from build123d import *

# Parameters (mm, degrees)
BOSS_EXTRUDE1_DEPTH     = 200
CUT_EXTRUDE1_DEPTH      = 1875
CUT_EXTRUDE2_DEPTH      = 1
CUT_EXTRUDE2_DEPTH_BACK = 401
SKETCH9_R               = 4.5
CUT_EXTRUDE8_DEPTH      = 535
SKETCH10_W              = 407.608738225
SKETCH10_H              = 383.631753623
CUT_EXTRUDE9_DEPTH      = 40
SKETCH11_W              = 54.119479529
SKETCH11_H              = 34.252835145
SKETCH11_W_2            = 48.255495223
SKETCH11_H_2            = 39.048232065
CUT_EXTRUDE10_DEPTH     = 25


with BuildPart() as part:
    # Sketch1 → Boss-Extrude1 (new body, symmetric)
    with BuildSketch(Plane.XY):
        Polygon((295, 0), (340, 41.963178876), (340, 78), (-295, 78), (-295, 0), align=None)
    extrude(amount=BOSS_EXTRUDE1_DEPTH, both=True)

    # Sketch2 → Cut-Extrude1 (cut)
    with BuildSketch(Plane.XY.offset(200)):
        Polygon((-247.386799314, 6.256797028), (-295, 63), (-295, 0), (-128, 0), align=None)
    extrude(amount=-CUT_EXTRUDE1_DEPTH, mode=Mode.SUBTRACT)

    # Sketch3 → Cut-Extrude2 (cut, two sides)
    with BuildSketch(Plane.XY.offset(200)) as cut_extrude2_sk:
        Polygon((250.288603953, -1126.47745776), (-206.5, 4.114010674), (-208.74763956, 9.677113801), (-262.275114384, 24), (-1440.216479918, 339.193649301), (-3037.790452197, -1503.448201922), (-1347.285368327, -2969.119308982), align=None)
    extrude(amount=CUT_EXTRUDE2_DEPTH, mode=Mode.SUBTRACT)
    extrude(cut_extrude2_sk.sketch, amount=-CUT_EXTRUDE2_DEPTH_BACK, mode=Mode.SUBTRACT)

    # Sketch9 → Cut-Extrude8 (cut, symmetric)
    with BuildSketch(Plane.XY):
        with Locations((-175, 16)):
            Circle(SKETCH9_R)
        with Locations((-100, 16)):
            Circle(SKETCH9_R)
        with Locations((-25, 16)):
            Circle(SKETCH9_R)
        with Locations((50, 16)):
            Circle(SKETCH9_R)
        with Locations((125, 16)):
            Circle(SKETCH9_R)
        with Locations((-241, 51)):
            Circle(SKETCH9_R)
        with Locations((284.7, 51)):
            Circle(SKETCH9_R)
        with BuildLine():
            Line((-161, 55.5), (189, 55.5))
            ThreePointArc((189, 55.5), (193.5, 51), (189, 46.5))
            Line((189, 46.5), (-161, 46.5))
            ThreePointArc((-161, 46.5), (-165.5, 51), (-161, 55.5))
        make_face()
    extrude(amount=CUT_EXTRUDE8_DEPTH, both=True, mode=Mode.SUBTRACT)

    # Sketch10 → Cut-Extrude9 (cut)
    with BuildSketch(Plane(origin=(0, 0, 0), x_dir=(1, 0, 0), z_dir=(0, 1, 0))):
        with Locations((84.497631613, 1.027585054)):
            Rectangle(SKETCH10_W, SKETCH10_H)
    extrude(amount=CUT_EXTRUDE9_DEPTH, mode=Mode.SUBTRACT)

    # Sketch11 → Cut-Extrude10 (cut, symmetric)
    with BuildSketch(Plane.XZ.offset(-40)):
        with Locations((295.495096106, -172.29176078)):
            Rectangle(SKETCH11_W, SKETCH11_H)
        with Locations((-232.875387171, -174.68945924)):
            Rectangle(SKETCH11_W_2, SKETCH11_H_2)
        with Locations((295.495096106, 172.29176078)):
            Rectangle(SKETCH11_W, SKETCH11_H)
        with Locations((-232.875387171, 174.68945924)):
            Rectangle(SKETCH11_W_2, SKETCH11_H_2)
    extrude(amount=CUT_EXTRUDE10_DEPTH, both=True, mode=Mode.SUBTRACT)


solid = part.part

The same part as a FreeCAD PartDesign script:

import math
import FreeCAD as App
import Part
import Sketcher

V = App.Vector
Q = App.Units.Quantity


def add_polygon(sketch, points):
    """Adds a closed chain of lines whose ends are joined by coincident constraints."""
    first, n = sketch.GeometryCount, len(points)
    for a, b in zip(points, points[1:] + points[:1]):
        sketch.addGeometry(Part.LineSegment(App.Vector(*a, 0), App.Vector(*b, 0)), False)
    for i in range(n):
        sketch.addConstraint(Sketcher.Constraint("Coincident", first + i, 2, first + (i + 1) % n, 1))

doc = App.newDocument("Part")
params = doc.addObject("Spreadsheet::Sheet", "Params")
for row, (alias, value) in enumerate([
    ("sketch1_width", "635 mm"),
    ("sketch1_width2", "590 mm"),
    ("sketch1_height", "78 mm"),
    ("pad1_length", "400 mm"),
    ("sketch2_width", "167 mm"),
    ("sketch2_height", "63 mm"),
    ("pocket1_length", "1875 mm"),
    ("sketch3_length", "6 mm"),
    ("sketch4_diameter", "9 mm"),
    ("sketch4_width", "350 mm"),
    ("pocket3_length", "1070 mm"),
    ("pocket4_length", "40 mm"),
    ("pocket5_length", "50 mm"),
], start=1):
    params.set(f"A{row}", alias)
    params.set(f"B{row}", "=" + value)
    params.setAlias(f"B{row}", alias)

body = doc.addObject("PartDesign::Body", "Body")

# Sketch on XY plane
sketch1 = doc.addObject("Sketcher::SketchObject", "Sketch")
body.addObject(sketch1)
sketch1.AttachmentSupport = (doc.XY_Plane, [""])
sketch1.MapMode = "FlatFace"
add_polygon(sketch1, [(295, 0), (340, 42), (340, 78), (-295, 78), (-295, 0)])  # lines 0-4
sketch1.addConstraint(Sketcher.Constraint("Vertical", 1))
sketch1.addConstraint(Sketcher.Constraint("Horizontal", 2))
sketch1.addConstraint(Sketcher.Constraint("Vertical", 3))
sketch1.addConstraint(Sketcher.Constraint("Horizontal", 4))
sketch1.addConstraint(Sketcher.Constraint("Symmetric", 3, 2, 4, 2, -1, 1))
sketch1.addConstraint(Sketcher.Constraint("DistanceX", 2, 2, 2, 1, Q("635 mm")))
sketch1.addConstraint(Sketcher.Constraint("DistanceX", 4, 1, 4, 2, Q("590 mm")))
sketch1.addConstraint(Sketcher.Constraint("DistanceY", 3, 2, 3, 1, Q("78 mm")))
sketch1.addConstraint(Sketcher.Constraint("Angle", 0, Q("43 deg")))
sketch1.setExpression("Constraints[10]", "Params.sketch1_width")
sketch1.setExpression("Constraints[11]", "Params.sketch1_width2")
sketch1.setExpression("Constraints[12]", "Params.sketch1_height")
pad1 = doc.addObject("PartDesign::Pad", "Pad")
body.addObject(pad1)
pad1.Profile = sketch1
pad1.setExpression("Length", "Params.pad1_length")
pad1.Midplane = True

# Sketch on XY plane
sketch2 = doc.addObject("Sketcher::SketchObject", "Sketch001")
body.addObject(sketch2)
sketch2.AttachmentSupport = (doc.XY_Plane, [""])
sketch2.MapMode = "FlatFace"
sketch2.AttachmentOffset = App.Placement(V(0, 0, 200), App.Rotation())
add_polygon(sketch2, [(-247, 6), (-295, 63), (-295, 0), (-128, 0)])  # lines 0-3
sketch2.addConstraint(Sketcher.Constraint("Vertical", 1))
sketch2.addConstraint(Sketcher.Constraint("Horizontal", 2))
sketch2.addConstraint(Sketcher.Constraint("PointOnObject", 1, 2, -1))
sketch2.addConstraint(Sketcher.Constraint("DistanceX", 2, 1, 2, 2, Q("167 mm")))
sketch2.addConstraint(Sketcher.Constraint("DistanceY", 1, 2, 1, 1, Q("63 mm")))
sketch2.addConstraint(Sketcher.Constraint("Angle", 0, Q("130 deg")))
sketch2.addConstraint(Sketcher.Constraint("Angle", 3, Q("177 deg")))
sketch2.addConstraint(Sketcher.Constraint("DistanceX", 0, 2, -1, 1, Q("295 mm")))
sketch2.setExpression("Constraints[7]", "Params.sketch2_width")
sketch2.setExpression("Constraints[8]", "Params.sketch2_height")
pocket1 = doc.addObject("PartDesign::Pocket", "Pocket")
body.addObject(pocket1)
pocket1.Profile = sketch2
pocket1.setExpression("Length", "Params.pocket1_length")

# Sketch on XY plane
sketch3 = doc.addObject("Sketcher::SketchObject", "Sketch002")
body.addObject(sketch3)
sketch3.AttachmentSupport = (doc.XY_Plane, [""])
sketch3.MapMode = "FlatFace"
sketch3.AttachmentOffset = App.Placement(V(0, 0, 200), App.Rotation())
add_polygon(sketch3, [(250, -1126), (-206, 4), (-209, 10), (-1440, 339), (-3038, -1503), (-1347, -2969)])  # lines 0-5
sketch3.addConstraint(Sketcher.Constraint("Parallel", 0, 1))
sketch3.addConstraint(Sketcher.Constraint("Perpendicular", 3, 4))
sketch3.addConstraint(Sketcher.Constraint("Perpendicular", 4, 5))
sketch3.addConstraint(Sketcher.Constraint("Equal", 3, 5))
sketch3.addConstraint(Sketcher.Constraint("Angle", 0, Q("112 deg")))
sketch3.addConstraint(Sketcher.Constraint("Distance", 1, Q("6 mm")))
sketch3.addConstraint(Sketcher.Constraint("DistanceX", 0, 2, -1, 1, Q("206.5 mm")))
sketch3.addConstraint(Sketcher.Constraint("DistanceY", 3, 2, -1, 1, Q("1503.448202 mm")))
sketch3.addConstraint(Sketcher.Constraint("Distance", 0, Q("1219.382178 mm")))
sketch3.addConstraint(Sketcher.Constraint("DistanceY", -1, 1, 0, 2, Q("4.114011 mm")))
sketch3.addConstraint(Sketcher.Constraint("DistanceX", 2, 2, -1, 1, Q("1440.21648 mm")))
sketch3.addConstraint(Sketcher.Constraint("DistanceY", -1, 1, 2, 2, Q("339.193649 mm")))
sketch3.setExpression("Constraints[11]", "Params.sketch3_length")
pocket2 = doc.addObject("PartDesign::Pocket", "Pocket001")
body.addObject(pocket2)
pocket2.Profile = sketch3
pocket2.Type = "ThroughAll"
pocket2.Midplane = True

# Sketch on XY plane
sketch4 = doc.addObject("Sketcher::SketchObject", "Sketch003")
body.addObject(sketch4)
sketch4.AttachmentSupport = (doc.XY_Plane, [""])
sketch4.MapMode = "FlatFace"
sketch4.addGeometry(Part.Circle(V(-175, 16, 0), V(0, 0, 1), 4.5), False)
sketch4.addGeometry(Part.Circle(V(-100, 16, 0), V(0, 0, 1), 4.5), False)
sketch4.addGeometry(Part.Circle(V(-25, 16, 0), V(0, 0, 1), 4.5), False)
sketch4.addGeometry(Part.Circle(V(50, 16, 0), V(0, 0, 1), 4.5), False)
sketch4.addGeometry(Part.Circle(V(125, 16, 0), V(0, 0, 1), 4.5), False)
sketch4.addGeometry(Part.Circle(V(-241, 51, 0), V(0, 0, 1), 4.5), False)
sketch4.addGeometry(Part.Circle(V(284.7, 51, 0), V(0, 0, 1), 4.5), False)
sketch4.addGeometry(Part.LineSegment(V(189, 55.5, 0), V(-161, 55.5, 0)), False)
sketch4.addGeometry(Part.ArcOfCircle(Part.Circle(V(-161, 51, 0), V(0, 0, 1), 4.5), math.radians(90), math.radians(270)), False)
sketch4.addGeometry(Part.LineSegment(V(-161, 46.5, 0), V(189, 46.5, 0)), False)
sketch4.addGeometry(Part.ArcOfCircle(Part.Circle(V(189, 51, 0), V(0, 0, 1), 4.5), math.radians(-90), math.radians(90)), False)
sketch4.addConstraint(Sketcher.Constraint("Tangent", 7, 2, 8, 1))
sketch4.addConstraint(Sketcher.Constraint("Tangent", 8, 2, 9, 1))
sketch4.addConstraint(Sketcher.Constraint("Tangent", 9, 2, 10, 1))
sketch4.addConstraint(Sketcher.Constraint("Tangent", 10, 2, 7, 1))
sketch4.addConstraint(Sketcher.Constraint("Horizontal", 7))
sketch4.addConstraint(Sketcher.Constraint("Horizontal", 9))
sketch4.addConstraint(Sketcher.Constraint("Equal", 0, 1))
sketch4.addConstraint(Sketcher.Constraint("Equal", 1, 2))
sketch4.addConstraint(Sketcher.Constraint("Equal", 2, 3))
sketch4.addConstraint(Sketcher.Constraint("Equal", 3, 4))
sketch4.addConstraint(Sketcher.Constraint("Equal", 4, 5))
sketch4.addConstraint(Sketcher.Constraint("Equal", 5, 6))
sketch4.addConstraint(Sketcher.Constraint("Equal", 6, 8))
sketch4.addConstraint(Sketcher.Constraint("Horizontal", 0, 3, 1, 3))
sketch4.addConstraint(Sketcher.Constraint("Horizontal", 1, 3, 2, 3))
sketch4.addConstraint(Sketcher.Constraint("Horizontal", 2, 3, 3, 3))
sketch4.addConstraint(Sketcher.Constraint("Horizontal", 3, 3, 4, 3))
sketch4.addConstraint(Sketcher.Constraint("Horizontal", 5, 3, 6, 3))
sketch4.addConstraint(Sketcher.Constraint("Horizontal", 6, 3, 8, 3))
sketch4.addConstraint(Sketcher.Constraint("Diameter", 0, Q("9 mm")))
sketch4.addConstraint(Sketcher.Constraint("DistanceX", 7, 2, 7, 1, Q("350 mm")))
sketch4.addConstraint(Sketcher.Constraint("DistanceX", 0, 3, -1, 1, Q("175 mm")))
sketch4.addConstraint(Sketcher.Constraint("DistanceY", -1, 1, 0, 3, Q("16 mm")))
sketch4.addConstraint(Sketcher.Constraint("DistanceX", 1, 3, -1, 1, Q("100 mm")))
sketch4.addConstraint(Sketcher.Constraint("DistanceX", 2, 3, -1, 1, Q("25 mm")))
sketch4.addConstraint(Sketcher.Constraint("DistanceX", -1, 1, 3, 3, Q("50 mm")))
sketch4.addConstraint(Sketcher.Constraint("DistanceX", -1, 1, 4, 3, Q("125 mm")))
sketch4.addConstraint(Sketcher.Constraint("DistanceX", 5, 3, -1, 1, Q("241 mm")))
sketch4.addConstraint(Sketcher.Constraint("DistanceY", -1, 1, 5, 3, Q("51 mm")))
sketch4.addConstraint(Sketcher.Constraint("DistanceX", 8, 3, -1, 1, Q("161 mm")))
sketch4.addConstraint(Sketcher.Constraint("DistanceX", -1, 1, 6, 3, Q("284.7 mm")))
sketch4.setExpression("Constraints[19]", "Params.sketch4_diameter")
sketch4.setExpression("Constraints[20]", "Params.sketch4_width")
pocket3 = doc.addObject("PartDesign::Pocket", "Pocket002")
body.addObject(pocket3)
pocket3.Profile = sketch4
pocket3.setExpression("Length", "Params.pocket3_length")
pocket3.Midplane = True

# Sketch on XZ plane
sketch5 = doc.addObject("Sketcher::SketchObject", "Sketch004")
body.addObject(sketch5)
sketch5.AttachmentSupport = (doc.XZ_Plane, [""])
sketch5.MapMode = "FlatFace"
add_polygon(sketch5, [(-119, -193), (-119, 191), (288, 191), (288, -193)])  # lines 0-3
sketch5.addConstraint(Sketcher.Constraint("Vertical", 0))
sketch5.addConstraint(Sketcher.Constraint("Horizontal", 1))
sketch5.addConstraint(Sketcher.Constraint("Vertical", 2))
sketch5.addConstraint(Sketcher.Constraint("Horizontal", 3))
sketch5.addConstraint(Sketcher.Constraint("DistanceX", -1, 1, 1, 2, Q("288.302001 mm")))
sketch5.addConstraint(Sketcher.Constraint("DistanceX", 1, 1, 1, 2, Q("407.608738 mm")))
sketch5.addConstraint(Sketcher.Constraint("DistanceY", 0, 1, 0, 2, Q("383.631754 mm")))
sketch5.addConstraint(Sketcher.Constraint("DistanceY", -1, 1, 0, 2, Q("190.788292 mm")))
pocket4 = doc.addObject("PartDesign::Pocket", "Pocket003")
body.addObject(pocket4)
pocket4.Profile = sketch5
pocket4.setExpression("Length", "Params.pocket4_length")

# Sketch on XZ plane
sketch6 = doc.addObject("Sketcher::SketchObject", "Sketch005")
body.addObject(sketch6)
sketch6.AttachmentSupport = (doc.XZ_Plane, [""])
sketch6.MapMode = "FlatFace"
sketch6.AttachmentOffset = App.Placement(V(0, 0, -40), App.Rotation())
add_polygon(sketch6, [(268, -155), (268, -189), (323, -189), (323, -155)])  # lines 0-3
add_polygon(sketch6, [(-257, -155), (-257, -194), (-209, -194), (-209, -155)])  # lines 4-7
add_polygon(sketch6, [(268, 189), (268, 155), (323, 155), (323, 189)])  # lines 8-11
add_polygon(sketch6, [(-257, 194), (-257, 155), (-209, 155), (-209, 194)])  # lines 12-15
sketch6.addConstraint(Sketcher.Constraint("Vertical", 0))
sketch6.addConstraint(Sketcher.Constraint("Horizontal", 1))
sketch6.addConstraint(Sketcher.Constraint("Vertical", 2))
sketch6.addConstraint(Sketcher.Constraint("Horizontal", 3))
sketch6.addConstraint(Sketcher.Constraint("Vertical", 4))
sketch6.addConstraint(Sketcher.Constraint("Horizontal", 5))
sketch6.addConstraint(Sketcher.Constraint("Vertical", 6))
sketch6.addConstraint(Sketcher.Constraint("Horizontal", 7))
sketch6.addConstraint(Sketcher.Constraint("Vertical", 8))
sketch6.addConstraint(Sketcher.Constraint("Horizontal", 9))
sketch6.addConstraint(Sketcher.Constraint("Vertical", 10))
sketch6.addConstraint(Sketcher.Constraint("Horizontal", 11))
sketch6.addConstraint(Sketcher.Constraint("Vertical", 12))
sketch6.addConstraint(Sketcher.Constraint("Horizontal", 13))
sketch6.addConstraint(Sketcher.Constraint("Vertical", 14))
sketch6.addConstraint(Sketcher.Constraint("Horizontal", 15))
sketch6.addConstraint(Sketcher.Constraint("Symmetric", 3, 2, 8, 2, -1))
sketch6.addConstraint(Sketcher.Constraint("Symmetric", 1, 2, 10, 2, -1))
sketch6.addConstraint(Sketcher.Constraint("Symmetric", 7, 2, 12, 2, -1))
sketch6.addConstraint(Sketcher.Constraint("Symmetric", 5, 2, 14, 2, -1))
sketch6.addConstraint(Sketcher.Constraint("Horizontal", 3, 2, 6, 2))
sketch6.addConstraint(Sketcher.Constraint("DistanceX", 1, 1, 1, 2, Q("54.11948 mm")))
sketch6.addConstraint(Sketcher.Constraint("DistanceX", 5, 1, 5, 2, Q("48.255495 mm")))
sketch6.addConstraint(Sketcher.Constraint("DistanceY", 0, 2, 0, 1, Q("34.252835 mm")))
sketch6.addConstraint(Sketcher.Constraint("DistanceY", 4, 2, 4, 1, Q("39.048232 mm")))
sketch6.addConstraint(Sketcher.Constraint("DistanceY", 0, 2, -1, 1, Q("189.418178 mm")))
sketch6.addConstraint(Sketcher.Constraint("DistanceX", 5, 2, -1, 1, Q("208.74764 mm")))
sketch6.addConstraint(Sketcher.Constraint("DistanceX", 4, 2, 0, 2, Q("525.438491 mm")))
pocket5 = doc.addObject("PartDesign::Pocket", "Pocket004")
body.addObject(pocket5)
pocket5.Profile = sketch6
pocket5.setExpression("Length", "Params.pocket5_length")
pocket5.Midplane = True

doc.recompute()
